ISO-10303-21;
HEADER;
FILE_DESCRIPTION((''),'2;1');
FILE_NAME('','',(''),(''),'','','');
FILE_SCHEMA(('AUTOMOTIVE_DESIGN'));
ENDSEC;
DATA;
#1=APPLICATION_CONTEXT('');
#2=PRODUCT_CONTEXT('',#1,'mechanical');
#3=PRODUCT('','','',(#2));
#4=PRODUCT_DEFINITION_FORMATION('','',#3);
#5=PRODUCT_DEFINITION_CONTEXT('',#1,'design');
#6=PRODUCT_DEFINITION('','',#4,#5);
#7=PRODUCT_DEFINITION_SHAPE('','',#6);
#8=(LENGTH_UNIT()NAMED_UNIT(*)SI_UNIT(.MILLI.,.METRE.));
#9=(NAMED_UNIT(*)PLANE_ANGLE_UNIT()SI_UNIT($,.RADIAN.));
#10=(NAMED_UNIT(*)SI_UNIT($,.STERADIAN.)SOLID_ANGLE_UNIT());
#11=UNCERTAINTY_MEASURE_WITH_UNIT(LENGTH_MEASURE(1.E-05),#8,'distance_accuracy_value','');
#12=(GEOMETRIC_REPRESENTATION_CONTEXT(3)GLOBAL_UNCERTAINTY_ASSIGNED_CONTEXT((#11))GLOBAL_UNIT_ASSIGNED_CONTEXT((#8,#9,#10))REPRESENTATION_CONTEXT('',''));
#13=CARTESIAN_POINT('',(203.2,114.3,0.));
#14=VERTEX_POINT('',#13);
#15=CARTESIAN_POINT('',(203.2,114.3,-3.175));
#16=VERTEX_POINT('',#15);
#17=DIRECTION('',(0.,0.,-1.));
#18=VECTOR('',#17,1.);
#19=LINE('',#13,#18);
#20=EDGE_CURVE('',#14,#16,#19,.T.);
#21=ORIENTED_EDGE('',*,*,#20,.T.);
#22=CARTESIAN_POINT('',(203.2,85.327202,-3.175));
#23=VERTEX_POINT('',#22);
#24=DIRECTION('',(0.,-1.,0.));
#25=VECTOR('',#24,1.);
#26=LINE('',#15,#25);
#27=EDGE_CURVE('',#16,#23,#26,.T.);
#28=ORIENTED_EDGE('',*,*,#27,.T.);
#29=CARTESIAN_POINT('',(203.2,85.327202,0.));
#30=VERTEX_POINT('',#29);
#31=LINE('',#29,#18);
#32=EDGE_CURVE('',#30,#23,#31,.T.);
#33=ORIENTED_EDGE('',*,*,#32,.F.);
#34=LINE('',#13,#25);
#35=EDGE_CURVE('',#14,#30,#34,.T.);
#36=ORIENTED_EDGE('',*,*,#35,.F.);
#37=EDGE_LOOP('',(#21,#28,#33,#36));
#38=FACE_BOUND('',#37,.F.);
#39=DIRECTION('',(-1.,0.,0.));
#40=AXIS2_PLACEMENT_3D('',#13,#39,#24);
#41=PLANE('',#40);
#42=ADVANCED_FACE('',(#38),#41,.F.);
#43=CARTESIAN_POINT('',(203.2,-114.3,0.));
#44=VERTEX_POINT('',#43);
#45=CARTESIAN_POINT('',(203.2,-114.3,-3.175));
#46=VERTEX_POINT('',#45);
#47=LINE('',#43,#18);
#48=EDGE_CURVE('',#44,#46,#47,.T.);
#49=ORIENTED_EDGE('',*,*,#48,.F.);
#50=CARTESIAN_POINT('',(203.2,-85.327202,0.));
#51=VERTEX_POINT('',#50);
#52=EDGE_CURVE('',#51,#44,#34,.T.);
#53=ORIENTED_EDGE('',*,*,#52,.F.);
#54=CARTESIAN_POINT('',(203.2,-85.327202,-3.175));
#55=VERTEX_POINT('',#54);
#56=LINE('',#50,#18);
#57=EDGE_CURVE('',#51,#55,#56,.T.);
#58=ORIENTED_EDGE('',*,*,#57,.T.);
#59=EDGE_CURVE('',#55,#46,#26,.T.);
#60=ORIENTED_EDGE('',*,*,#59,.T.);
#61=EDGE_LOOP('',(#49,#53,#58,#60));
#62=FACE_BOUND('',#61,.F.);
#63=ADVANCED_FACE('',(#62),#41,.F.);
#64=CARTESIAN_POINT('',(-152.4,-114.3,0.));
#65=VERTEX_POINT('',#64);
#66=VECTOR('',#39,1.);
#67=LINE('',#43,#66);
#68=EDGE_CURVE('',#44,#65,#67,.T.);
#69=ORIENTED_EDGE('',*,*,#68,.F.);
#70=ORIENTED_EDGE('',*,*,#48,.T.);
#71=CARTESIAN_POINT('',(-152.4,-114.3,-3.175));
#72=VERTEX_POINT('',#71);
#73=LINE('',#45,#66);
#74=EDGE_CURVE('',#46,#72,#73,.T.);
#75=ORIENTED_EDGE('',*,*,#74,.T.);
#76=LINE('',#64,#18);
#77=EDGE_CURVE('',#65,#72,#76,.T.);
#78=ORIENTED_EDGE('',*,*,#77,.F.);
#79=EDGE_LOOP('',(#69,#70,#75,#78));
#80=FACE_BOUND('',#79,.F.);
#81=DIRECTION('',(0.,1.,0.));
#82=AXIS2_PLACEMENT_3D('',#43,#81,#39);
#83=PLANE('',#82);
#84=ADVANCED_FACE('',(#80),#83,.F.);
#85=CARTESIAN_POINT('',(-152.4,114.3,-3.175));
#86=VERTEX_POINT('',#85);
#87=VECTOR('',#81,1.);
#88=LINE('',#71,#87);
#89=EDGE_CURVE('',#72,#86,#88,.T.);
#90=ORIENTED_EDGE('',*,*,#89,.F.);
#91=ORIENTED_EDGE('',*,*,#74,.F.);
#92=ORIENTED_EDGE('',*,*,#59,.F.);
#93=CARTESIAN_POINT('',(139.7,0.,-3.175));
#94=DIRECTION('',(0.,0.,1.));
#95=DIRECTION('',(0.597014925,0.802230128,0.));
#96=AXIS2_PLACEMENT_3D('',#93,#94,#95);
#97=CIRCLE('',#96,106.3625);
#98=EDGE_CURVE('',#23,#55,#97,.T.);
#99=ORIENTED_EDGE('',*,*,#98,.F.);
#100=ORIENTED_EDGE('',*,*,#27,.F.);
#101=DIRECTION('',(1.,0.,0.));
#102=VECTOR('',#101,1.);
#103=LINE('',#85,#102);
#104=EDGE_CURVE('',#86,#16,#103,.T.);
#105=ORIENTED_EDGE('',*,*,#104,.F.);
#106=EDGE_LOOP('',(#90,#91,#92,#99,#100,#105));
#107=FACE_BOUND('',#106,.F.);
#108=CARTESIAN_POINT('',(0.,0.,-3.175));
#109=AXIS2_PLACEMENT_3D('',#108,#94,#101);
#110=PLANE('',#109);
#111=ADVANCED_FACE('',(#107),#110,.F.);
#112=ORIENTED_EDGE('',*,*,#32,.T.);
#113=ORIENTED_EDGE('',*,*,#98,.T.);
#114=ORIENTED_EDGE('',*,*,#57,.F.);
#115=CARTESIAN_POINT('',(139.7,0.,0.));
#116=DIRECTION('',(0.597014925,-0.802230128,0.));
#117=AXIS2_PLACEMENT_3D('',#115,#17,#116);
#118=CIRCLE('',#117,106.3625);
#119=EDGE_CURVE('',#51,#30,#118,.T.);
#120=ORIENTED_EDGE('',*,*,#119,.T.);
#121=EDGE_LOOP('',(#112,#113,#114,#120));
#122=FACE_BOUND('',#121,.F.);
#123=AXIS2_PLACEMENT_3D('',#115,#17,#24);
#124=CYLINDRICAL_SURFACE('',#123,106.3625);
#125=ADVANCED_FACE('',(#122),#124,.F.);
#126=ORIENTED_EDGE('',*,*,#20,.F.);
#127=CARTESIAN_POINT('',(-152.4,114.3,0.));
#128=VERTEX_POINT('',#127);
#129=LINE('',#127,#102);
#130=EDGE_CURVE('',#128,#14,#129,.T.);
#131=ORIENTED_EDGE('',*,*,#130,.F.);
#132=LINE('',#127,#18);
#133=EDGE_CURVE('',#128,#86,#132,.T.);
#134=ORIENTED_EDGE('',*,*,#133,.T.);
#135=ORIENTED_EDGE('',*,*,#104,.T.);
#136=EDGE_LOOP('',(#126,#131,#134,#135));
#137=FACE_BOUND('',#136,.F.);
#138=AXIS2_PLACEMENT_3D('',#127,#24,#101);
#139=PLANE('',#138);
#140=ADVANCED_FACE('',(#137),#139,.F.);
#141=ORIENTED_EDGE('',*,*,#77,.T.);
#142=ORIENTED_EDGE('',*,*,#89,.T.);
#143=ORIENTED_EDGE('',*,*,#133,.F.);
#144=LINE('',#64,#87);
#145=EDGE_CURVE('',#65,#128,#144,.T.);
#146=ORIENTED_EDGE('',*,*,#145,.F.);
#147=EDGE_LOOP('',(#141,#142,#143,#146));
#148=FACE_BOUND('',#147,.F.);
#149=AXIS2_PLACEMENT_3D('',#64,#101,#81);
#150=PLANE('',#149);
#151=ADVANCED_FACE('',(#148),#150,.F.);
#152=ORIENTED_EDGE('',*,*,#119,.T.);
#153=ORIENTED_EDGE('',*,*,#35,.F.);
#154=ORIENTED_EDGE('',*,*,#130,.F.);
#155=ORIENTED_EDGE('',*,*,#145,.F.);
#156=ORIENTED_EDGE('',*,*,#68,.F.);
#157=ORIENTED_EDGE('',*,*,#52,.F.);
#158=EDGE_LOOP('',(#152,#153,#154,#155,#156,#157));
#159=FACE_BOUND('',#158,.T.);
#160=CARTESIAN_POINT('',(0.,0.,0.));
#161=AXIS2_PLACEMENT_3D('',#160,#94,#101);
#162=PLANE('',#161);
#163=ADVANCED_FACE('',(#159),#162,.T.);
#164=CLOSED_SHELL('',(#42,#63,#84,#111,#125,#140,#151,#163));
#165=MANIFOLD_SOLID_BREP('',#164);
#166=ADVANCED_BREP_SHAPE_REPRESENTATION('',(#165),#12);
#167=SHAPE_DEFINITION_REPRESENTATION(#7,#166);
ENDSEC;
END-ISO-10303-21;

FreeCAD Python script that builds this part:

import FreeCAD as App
import Part
import Sketcher

V = App.Vector
Q = App.Units.Quantity


def add_polygon(sketch, points):
    """Adds a closed chain of lines whose ends are joined by coincident constraints."""
    first, n = sketch.GeometryCount, len(points)
    for a, b in zip(points, points[1:] + points[:1]):
        sketch.addGeometry(Part.LineSegment(App.Vector(*a, 0), App.Vector(*b, 0)), False)
    for i in range(n):
        sketch.addConstraint(Sketcher.Constraint("Coincident", first + i, 2, first + (i + 1) % n, 1))

doc = App.newDocument("Part")
params = doc.addObject("Spreadsheet::Sheet", "Params")
for row, (alias, value) in enumerate([
    ("sketch1_width", "14 in"),
    ("sketch1_height", "9 in"),
    ("pad1_length", "0.125 in"),
    ("sketch2_diameter", "8.375 in"),
    ("hole_diameter", "8.375 in"),
    ("hole_depth", "0.125 in"),
], start=1):
    params.set(f"A{row}", alias)
    params.set(f"B{row}", "=" + value)
    params.setAlias(f"B{row}", alias)

body = doc.addObject("PartDesign::Body", "Body")

sketch1 = body.newObject("Sketcher::SketchObject", "Sketch")
sketch1.AttachmentSupport = (doc.getObject("XY_Plane"), [""])
sketch1.MapMode = "FlatFace"
add_polygon(sketch1, [(203.2, 114.3), (-152.4, 114.3), (-152.4, -114.3), (203.2, -114.3)])
sketch1.addConstraint([
    Sketcher.Constraint("Horizontal", 0),
    Sketcher.Constraint("Vertical", 1),
    Sketcher.Constraint("Horizontal", 2),
    Sketcher.Constraint("Vertical", 3),
    Sketcher.Constraint("DistanceX", 0, 2, 0, 1, Q("14 in")),
    Sketcher.Constraint("DistanceY", 1, 2, 1, 1, Q("9 in")),
    Sketcher.Constraint("DistanceX", 0, 2, -1, 1, Q("6 in")),
    Sketcher.Constraint("DistanceY", -1, 1, 0, 2, Q("4.5 in")),
])
sketch1.setExpression("Constraints[8]", "Params.sketch1_width")
sketch1.setExpression("Constraints[9]", "Params.sketch1_height")
pad1 = body.newObject("PartDesign::Pad", "Pad")
pad1.Profile = sketch1
pad1.setExpression("Length", "Params.pad1_length")
pad1.Reversed = True

sketch2 = body.newObject("Sketcher::SketchObject", "Sketch001")
sketch2.AttachmentSupport = (doc.getObject("XY_Plane"), [""])
sketch2.MapMode = "FlatFace"
sketch2.addGeometry(Part.Circle(V(139.7, 0, 0), V(0, 0, 1), 106.3625), False)
sketch2.addConstraint([
    Sketcher.Constraint("PointOnObject", 0, 3, -1),
    Sketcher.Constraint("Diameter", 0, Q("8.375 in")),
    Sketcher.Constraint("DistanceX", -1, 1, 0, 3, Q("5.5 in")),
])
sketch2.setExpression("Constraints[1]", "Params.sketch2_diameter")
doc.recompute()
hole = body.newObject("PartDesign::Hole", "Hole")
hole.Profile = sketch2
hole.ThreadType = "None"
hole.setExpression("Diameter", "Params.hole_diameter")
hole.DepthType = "Dimension"
hole.setExpression("Depth", "Params.hole_depth")
hole.DrillPoint = "Angled"
hole.DrillPointAngle = 118

doc.recompute()
